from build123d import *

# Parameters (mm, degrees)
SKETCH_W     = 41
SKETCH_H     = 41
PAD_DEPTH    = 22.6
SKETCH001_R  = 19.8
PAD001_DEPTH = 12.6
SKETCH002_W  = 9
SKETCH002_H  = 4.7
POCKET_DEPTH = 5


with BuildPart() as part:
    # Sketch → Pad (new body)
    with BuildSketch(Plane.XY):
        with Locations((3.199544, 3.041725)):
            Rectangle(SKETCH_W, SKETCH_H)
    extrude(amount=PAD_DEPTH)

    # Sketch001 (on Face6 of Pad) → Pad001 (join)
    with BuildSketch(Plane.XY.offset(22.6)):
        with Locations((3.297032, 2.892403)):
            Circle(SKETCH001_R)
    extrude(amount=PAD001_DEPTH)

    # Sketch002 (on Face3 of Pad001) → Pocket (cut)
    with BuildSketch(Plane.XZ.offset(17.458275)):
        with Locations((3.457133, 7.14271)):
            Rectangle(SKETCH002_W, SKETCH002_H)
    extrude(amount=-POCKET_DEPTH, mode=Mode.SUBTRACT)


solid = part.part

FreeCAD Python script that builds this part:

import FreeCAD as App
import Part
import Sketcher
Q = App.Units.Quantity


def add_polygon(sketch, points):
    """Adds a closed chain of lines whose ends are joined by coincident constraints."""
    first, n = sketch.GeometryCount, len(points)
    for a, b in zip(points, points[1:] + points[:1]):
        sketch.addGeometry(Part.LineSegment(App.Vector(*a, 0), App.Vector(*b, 0)), False)
    for i in range(n):
        sketch.addConstraint(Sketcher.Constraint("Coincident", first + i, 2, first + (i + 1) % n, 1))

doc = App.newDocument("Part")
body = doc.addObject("PartDesign::Body", "Body")

sketch1 = body.newObject("Sketcher::SketchObject", "Sketch")
sketch1.AttachmentSupport = (doc.getObject("XY_Plane"), [""])
sketch1.MapMode = "FlatFace"
add_polygon(sketch1, [(-17.300456, 23.541725), (-17.300456, -17.458275), (23.699544, -17.458275), (23.699544, 23.541725)])
sketch1.addConstraint(Sketcher.Constraint("Vertical", 0))
sketch1.addConstraint(Sketcher.Constraint("Horizontal", 1))
sketch1.addConstraint(Sketcher.Constraint("Vertical", 2))
sketch1.addConstraint(Sketcher.Constraint("Horizontal", 3))
sketch1.addConstraint(Sketcher.Constraint("Equal", 3, 0))
sketch1.addConstraint(Sketcher.Constraint("DistanceX", 1, 1, 1, 2, Q("41 mm")))
sketch1.addConstraint(Sketcher.Constraint("DistanceX", 0, 2, -1, 1, Q("17.300456 mm")))
sketch1.addConstraint(Sketcher.Constraint("DistanceY", 0, 2, -1, 1, Q("17.458275 mm")))
pad1 = body.newObject("PartDesign::Pad", "Pad")
pad1.Profile = sketch1
pad1.Length = 22.6

sketch2 = body.newObject("Sketcher::SketchObject", "Sketch001")
sketch2.AttachmentSupport = (doc.getObject("XY_Plane"), [""])
sketch2.MapMode = "FlatFace"
sketch2.AttachmentOffset = App.Placement(App.Vector(0, 0, 22.6), App.Rotation())
sketch2.addGeometry(Part.Circle(App.Vector(3.297032, 2.892403, 0), App.Vector(0, 0, 1), 19.8), False)
sketch2.addConstraint(Sketcher.Constraint("Diameter", 0, Q("39.6 mm")))
sketch2.addConstraint(Sketcher.Constraint("DistanceX", -1, 1, 0, 3, Q("3.297032 mm")))
sketch2.addConstraint(Sketcher.Constraint("DistanceY", -1, 1, 0, 3, Q("2.892403 mm")))
pad2 = body.newObject("PartDesign::Pad", "Pad001")
pad2.Profile = sketch2
pad2.Length = 12.6

sketch3 = body.newObject("Sketcher::SketchObject", "Sketch002")
sketch3.AttachmentSupport = (doc.getObject("XZ_Plane"), [""])
sketch3.MapMode = "FlatFace"
sketch3.AttachmentOffset = App.Placement(App.Vector(0, 0, 17.458275), App.Rotation())
add_polygon(sketch3, [(-1.042867, 9.49271), (-1.042867, 4.79271), (7.957133, 4.79271), (7.957133, 9.49271)])
sketch3.addConstraint(Sketcher.Constraint("Vertical", 0))
sketch3.addConstraint(Sketcher.Constraint("Horizontal", 1))
sketch3.addConstraint(Sketcher.Constraint("Vertical", 2))
sketch3.addConstraint(Sketcher.Constraint("Horizontal", 3))
sketch3.addConstraint(Sketcher.Constraint("DistanceX", 1, 1, 1, 2, Q("9 mm")))
sketch3.addConstraint(Sketcher.Constraint("DistanceY", 0, 2, 0, 1, Q("4.7 mm")))
sketch3.addConstraint(Sketcher.Constraint("DistanceY", -1, 1, 0, 2, Q("4.79271 mm")))
sketch3.addConstraint(Sketcher.Constraint("DistanceX", 0, 2, -1, 1, Q("1.042867 mm")))
pocket1 = body.newObject("PartDesign::Pocket", "Pocket")
pocket1.Profile = sketch3
pocket1.Length = 5

doc.recompute()
